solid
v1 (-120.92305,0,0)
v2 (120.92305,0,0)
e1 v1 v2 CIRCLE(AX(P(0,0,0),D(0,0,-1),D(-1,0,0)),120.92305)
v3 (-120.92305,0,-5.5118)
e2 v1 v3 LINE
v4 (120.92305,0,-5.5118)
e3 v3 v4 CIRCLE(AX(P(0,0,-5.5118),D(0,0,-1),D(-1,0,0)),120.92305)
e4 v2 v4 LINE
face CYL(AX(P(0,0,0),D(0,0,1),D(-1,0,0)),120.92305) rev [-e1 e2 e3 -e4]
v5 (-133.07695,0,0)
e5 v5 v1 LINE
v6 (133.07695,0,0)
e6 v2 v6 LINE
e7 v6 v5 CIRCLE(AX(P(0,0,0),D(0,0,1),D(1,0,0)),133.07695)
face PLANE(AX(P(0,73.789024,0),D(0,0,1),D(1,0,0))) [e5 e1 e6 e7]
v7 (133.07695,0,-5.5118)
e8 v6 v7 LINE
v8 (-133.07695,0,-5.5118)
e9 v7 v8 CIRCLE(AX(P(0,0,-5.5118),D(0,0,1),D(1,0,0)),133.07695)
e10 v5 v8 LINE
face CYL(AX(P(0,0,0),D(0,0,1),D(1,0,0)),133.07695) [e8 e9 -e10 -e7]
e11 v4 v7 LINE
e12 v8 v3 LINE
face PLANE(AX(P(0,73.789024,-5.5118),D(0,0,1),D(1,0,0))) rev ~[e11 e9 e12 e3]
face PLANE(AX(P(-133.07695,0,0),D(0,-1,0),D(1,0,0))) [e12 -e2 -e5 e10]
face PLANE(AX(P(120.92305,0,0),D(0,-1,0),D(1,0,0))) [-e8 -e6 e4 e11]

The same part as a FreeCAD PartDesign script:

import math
import FreeCAD as App
import Part
import Sketcher
from FreeCAD import Vector
Q = App.Units.Quantity

doc = App.newDocument("Part")
params = doc.addObject("Spreadsheet::Sheet", "Params")
for row, (alias, value) in enumerate([
    ("pad1_length", "0.217 in"),
], start=1):
    params.set(f"A{row}", alias)
    params.set(f"B{row}", "=" + value)
    params.setAlias(f"B{row}", alias)

body = doc.addObject("PartDesign::Body", "Body")

# Sketch on XY plane
sketch1 = body.newObject("Sketcher::SketchObject", "Sketch")
sketch1.AttachmentSupport = (doc.getObject("XY_Plane"), [""])
sketch1.MapMode = "FlatFace"
sketch1.addGeometry(Part.ArcOfCircle(Part.Circle(Vector(0, 0, 0), Vector(0, 0, 1), 133.07695), math.radians(0), math.radians(180)), False)
sketch1.addGeometry(Part.LineSegment(Vector(-133.07695, 0, 0), Vector(-120.92305, 0, 0)), False)
sketch1.addGeometry(Part.ArcOfCircle(Part.Circle(Vector(0, 0, 0), Vector(0, 0, 1), 120.92305), math.radians(0), math.radians(180)), False)
sketch1.addGeometry(Part.LineSegment(Vector(120.92305, 0, 0), Vector(133.07695, 0, 0)), False)
sketch1.addConstraint(Sketcher.Constraint("Coincident", 0, 2, 1, 1))
sketch1.addConstraint(Sketcher.Constraint("Coincident", 1, 2, 2, 2))
sketch1.addConstraint(Sketcher.Constraint("Coincident", 2, 1, 3, 1))
sketch1.addConstraint(Sketcher.Constraint("Coincident", 3, 2, 0, 1))
sketch1.addConstraint(Sketcher.Constraint("Horizontal", 1))
sketch1.addConstraint(Sketcher.Constraint("Horizontal", 3))
sketch1.addConstraint(Sketcher.Constraint("Coincident", 0, 3, -1, 1))
sketch1.addConstraint(Sketcher.Constraint("Coincident", 2, 3, -1, 1))
sketch1.addConstraint(Sketcher.Constraint("PointOnObject", 0, 2, -1))
sketch1.addConstraint(Sketcher.Constraint("PointOnObject", 2, 1, -1))
sketch1.addConstraint(Sketcher.Constraint("DistanceX", 0, 2, 2, 1, Q("10 in")))
sketch1.addConstraint(Sketcher.Constraint("DistanceX", 1, 1, 1, 2, Q("0.4785 in")))
pad1 = body.newObject("PartDesign::Pad", "Pad")
pad1.Profile = sketch1
pad1.setExpression("Length", "Params.pad1_length")
pad1.Reversed = True

doc.recompute()
